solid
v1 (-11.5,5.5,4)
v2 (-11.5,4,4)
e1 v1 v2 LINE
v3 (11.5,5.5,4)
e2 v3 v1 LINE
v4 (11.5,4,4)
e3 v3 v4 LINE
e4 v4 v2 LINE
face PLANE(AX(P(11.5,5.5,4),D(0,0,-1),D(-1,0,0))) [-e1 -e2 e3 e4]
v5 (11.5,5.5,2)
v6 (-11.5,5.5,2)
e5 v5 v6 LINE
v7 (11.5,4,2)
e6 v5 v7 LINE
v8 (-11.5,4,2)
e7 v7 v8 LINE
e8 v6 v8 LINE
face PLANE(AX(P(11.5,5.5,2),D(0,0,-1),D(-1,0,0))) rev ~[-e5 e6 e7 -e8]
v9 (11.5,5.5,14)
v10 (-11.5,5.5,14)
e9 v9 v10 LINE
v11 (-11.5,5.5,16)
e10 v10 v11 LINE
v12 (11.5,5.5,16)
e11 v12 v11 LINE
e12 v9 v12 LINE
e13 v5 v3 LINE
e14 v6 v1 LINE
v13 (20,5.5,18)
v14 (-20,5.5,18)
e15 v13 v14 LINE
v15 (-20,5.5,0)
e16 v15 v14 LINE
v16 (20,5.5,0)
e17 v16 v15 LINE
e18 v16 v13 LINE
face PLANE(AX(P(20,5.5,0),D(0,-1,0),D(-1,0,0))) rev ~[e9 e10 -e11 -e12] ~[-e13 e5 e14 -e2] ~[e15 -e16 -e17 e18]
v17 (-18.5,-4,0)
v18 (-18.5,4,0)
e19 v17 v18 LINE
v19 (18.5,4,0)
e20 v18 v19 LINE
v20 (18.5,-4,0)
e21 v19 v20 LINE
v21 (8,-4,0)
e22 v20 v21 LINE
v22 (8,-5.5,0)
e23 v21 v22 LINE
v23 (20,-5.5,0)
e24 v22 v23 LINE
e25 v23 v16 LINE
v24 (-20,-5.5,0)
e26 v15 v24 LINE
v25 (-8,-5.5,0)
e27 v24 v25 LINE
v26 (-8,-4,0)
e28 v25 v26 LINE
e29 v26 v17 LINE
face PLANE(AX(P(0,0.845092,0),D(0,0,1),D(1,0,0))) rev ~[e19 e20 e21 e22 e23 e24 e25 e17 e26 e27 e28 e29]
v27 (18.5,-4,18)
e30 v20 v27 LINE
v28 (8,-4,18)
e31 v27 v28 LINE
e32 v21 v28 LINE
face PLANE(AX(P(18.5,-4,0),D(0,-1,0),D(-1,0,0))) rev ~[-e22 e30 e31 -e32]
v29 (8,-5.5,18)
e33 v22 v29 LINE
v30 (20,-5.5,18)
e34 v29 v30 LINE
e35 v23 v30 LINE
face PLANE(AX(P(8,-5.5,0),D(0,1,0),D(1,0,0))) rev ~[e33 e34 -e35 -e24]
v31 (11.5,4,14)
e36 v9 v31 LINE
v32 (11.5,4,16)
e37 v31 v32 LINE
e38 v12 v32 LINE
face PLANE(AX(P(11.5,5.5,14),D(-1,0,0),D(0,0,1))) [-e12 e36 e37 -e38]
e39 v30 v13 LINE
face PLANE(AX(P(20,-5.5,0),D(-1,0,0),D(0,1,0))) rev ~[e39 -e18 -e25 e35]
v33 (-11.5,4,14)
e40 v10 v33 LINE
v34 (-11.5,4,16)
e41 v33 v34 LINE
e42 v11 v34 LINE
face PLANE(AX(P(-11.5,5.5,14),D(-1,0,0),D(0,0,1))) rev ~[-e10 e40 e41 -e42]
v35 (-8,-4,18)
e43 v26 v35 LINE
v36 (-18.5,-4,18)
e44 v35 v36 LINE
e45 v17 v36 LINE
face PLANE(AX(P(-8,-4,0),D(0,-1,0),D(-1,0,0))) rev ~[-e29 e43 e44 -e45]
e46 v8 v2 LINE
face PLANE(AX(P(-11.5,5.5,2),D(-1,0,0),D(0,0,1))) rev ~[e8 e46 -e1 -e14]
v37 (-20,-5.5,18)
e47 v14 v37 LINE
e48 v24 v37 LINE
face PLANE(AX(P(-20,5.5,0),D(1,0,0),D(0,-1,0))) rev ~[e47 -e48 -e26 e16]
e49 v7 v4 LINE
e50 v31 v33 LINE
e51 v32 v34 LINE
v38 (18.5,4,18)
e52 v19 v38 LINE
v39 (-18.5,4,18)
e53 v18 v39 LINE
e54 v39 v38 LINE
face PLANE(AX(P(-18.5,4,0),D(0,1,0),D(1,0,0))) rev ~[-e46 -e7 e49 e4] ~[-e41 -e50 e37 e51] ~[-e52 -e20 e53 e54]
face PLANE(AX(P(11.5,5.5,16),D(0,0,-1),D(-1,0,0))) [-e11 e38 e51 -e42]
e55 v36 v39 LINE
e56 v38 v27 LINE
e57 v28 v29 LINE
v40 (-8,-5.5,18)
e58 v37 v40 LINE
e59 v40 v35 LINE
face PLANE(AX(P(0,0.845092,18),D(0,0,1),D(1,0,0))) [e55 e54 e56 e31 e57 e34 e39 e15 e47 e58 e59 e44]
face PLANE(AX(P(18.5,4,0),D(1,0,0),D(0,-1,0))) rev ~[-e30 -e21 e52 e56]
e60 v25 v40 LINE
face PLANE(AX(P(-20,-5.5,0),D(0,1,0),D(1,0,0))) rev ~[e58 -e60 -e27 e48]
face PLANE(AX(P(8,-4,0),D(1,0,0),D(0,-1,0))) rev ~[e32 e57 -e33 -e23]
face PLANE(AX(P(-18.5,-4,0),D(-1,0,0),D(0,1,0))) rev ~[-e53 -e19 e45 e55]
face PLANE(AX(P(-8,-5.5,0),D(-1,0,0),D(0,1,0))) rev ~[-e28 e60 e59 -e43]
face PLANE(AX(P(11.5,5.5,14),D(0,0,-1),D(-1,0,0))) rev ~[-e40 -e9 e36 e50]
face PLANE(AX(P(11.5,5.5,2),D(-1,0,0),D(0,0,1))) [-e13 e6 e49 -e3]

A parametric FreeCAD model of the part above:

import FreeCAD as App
import Part
import Sketcher

V = App.Vector

doc = App.newDocument("Part")
params = doc.addObject("Spreadsheet::Sheet", "Params")
for row, (alias, value) in enumerate([
    ("sketch1_width", "37 mm"),
    ("sketch1_width2", "12 mm"),
    ("sketch1_width3", "40 mm"),
    ("sketch1_height", "8 mm"),
    ("sketch1_height2", "11 mm"),
    ("pad1_length", "18 mm"),
    ("sketch2_width", "23 mm"),
    ("sketch2_height", "2 mm"),
    ("pocket1_length", "2 mm"),
], start=1):
    params.set(f"A{row}", alias)
    params.set(f"B{row}", "=" + value)
    params.setAlias(f"B{row}", alias)

body = doc.addObject("PartDesign::Body", "Body")

# Sketch on XY plane
sketch1 = body.newObject("Sketcher::SketchObject", "Sketch")
sketch1.AttachmentSupport = (doc.getObject("XY_Plane"), [""])
sketch1.MapMode = "FlatFace"
sketch1.addGeometry(Part.LineSegment(V(-18.5, 4, 0), V(18.5, 4, 0)), False)
sketch1.addGeometry(Part.LineSegment(V(18.5, 4, 0), V(18.5, -4, 0)), False)
sketch1.addGeometry(Part.LineSegment(V(18.5, -4, 0), V(8, -4, 0)), False)
sketch1.addGeometry(Part.LineSegment(V(8, -4, 0), V(8, -5.5, 0)), False)
sketch1.addGeometry(Part.LineSegment(V(8, -5.5, 0), V(20, -5.5, 0)), False)
sketch1.addGeometry(Part.LineSegment(V(20, -5.5, 0), V(20, 5.5, 0)), False)
sketch1.addGeometry(Part.LineSegment(V(20, 5.5, 0), V(-20, 5.5, 0)), False)
sketch1.addGeometry(Part.LineSegment(V(-20, 5.5, 0), V(-20, -5.5, 0)), False)
sketch1.addGeometry(Part.LineSegment(V(-20, -5.5, 0), V(-8, -5.5, 0)), False)
sketch1.addGeometry(Part.LineSegment(V(-8, -5.5, 0), V(-8, -4, 0)), False)
sketch1.addGeometry(Part.LineSegment(V(-8, -4, 0), V(-18.5, -4, 0)), False)
sketch1.addGeometry(Part.LineSegment(V(-18.5, -4, 0), V(-18.5, 4, 0)), False)
sketch1.addConstraint(Sketcher.Constraint("Coincident", 0, 2, 1, 1))
sketch1.addConstraint(Sketcher.Constraint("Coincident", 1, 2, 2, 1))
sketch1.addConstraint(Sketcher.Constraint("Coincident", 2, 2, 3, 1))
sketch1.addConstraint(Sketcher.Constraint("Coincident", 3, 2, 4, 1))
sketch1.addConstraint(Sketcher.Constraint("Coincident", 4, 2, 5, 1))
sketch1.addConstraint(Sketcher.Constraint("Coincident", 5, 2, 6, 1))
sketch1.addConstraint(Sketcher.Constraint("Coincident", 6, 2, 7, 1))
sketch1.addConstraint(Sketcher.Constraint("Coincident", 7, 2, 8, 1))
sketch1.addConstraint(Sketcher.Constraint("Coincident", 8, 2, 9, 1))
sketch1.addConstraint(Sketcher.Constraint("Coincident", 9, 2, 10, 1))
sketch1.addConstraint(Sketcher.Constraint("Coincident", 10, 2, 11, 1))
sketch1.addConstraint(Sketcher.Constraint("Coincident", 11, 2, 0, 1))
sketch1.addConstraint(Sketcher.Constraint("Horizontal", 0))
sketch1.addConstraint(Sketcher.Constraint("Vertical", 1))
sketch1.addConstraint(Sketcher.Constraint("Horizontal", 2))
sketch1.addConstraint(Sketcher.Constraint("Vertical", 3))
sketch1.addConstraint(Sketcher.Constraint("Horizontal", 4))
sketch1.addConstraint(Sketcher.Constraint("Vertical", 5))
sketch1.addConstraint(Sketcher.Constraint("Horizontal", 6))
sketch1.addConstraint(Sketcher.Constraint("Vertical", 7))
sketch1.addConstraint(Sketcher.Constraint("Horizontal", 8))
sketch1.addConstraint(Sketcher.Constraint("Vertical", 9))
sketch1.addConstraint(Sketcher.Constraint("Horizontal", 10))
sketch1.addConstraint(Sketcher.Constraint("Vertical", 11))
sketch1.addConstraint(Sketcher.Constraint("Symmetric", 4, 2, 6, 2, -1, 1))
sketch1.addConstraint(Sketcher.Constraint("Symmetric", 0, 2, 10, 2, -1, 1))
sketch1.addConstraint(Sketcher.Constraint("Symmetric", 3, 2, 8, 2, -2))
sketch1.addConstraint(Sketcher.Constraint("Horizontal", 2, 2, 9, 2))
sketch1.addConstraint(Sketcher.Constraint("DistanceX", 0, 1, 0, 2, 37.0))
sketch1.addConstraint(Sketcher.Constraint("DistanceX", 4, 1, 4, 2, 12.0))
sketch1.addConstraint(Sketcher.Constraint("DistanceX", 6, 2, 6, 1, 40.0))
sketch1.addConstraint(Sketcher.Constraint("DistanceY", 1, 2, 1, 1, 8.0))
sketch1.addConstraint(Sketcher.Constraint("DistanceY", 5, 1, 5, 2, 11.0))
sketch1.setExpression("Constraints[28]", "Params.sketch1_width")
sketch1.setExpression("Constraints[29]", "Params.sketch1_width2")
sketch1.setExpression("Constraints[30]", "Params.sketch1_width3")
sketch1.setExpression("Constraints[31]", "Params.sketch1_height")
sketch1.setExpression("Constraints[32]", "Params.sketch1_height2")
pad1 = body.newObject("PartDesign::Pad", "Pad")
pad1.Profile = sketch1
pad1.setExpression("Length", "Params.pad1_length")

# Sketch on XZ plane
sketch2 = body.newObject("Sketcher::SketchObject", "Sketch001")
sketch2.AttachmentSupport = (doc.getObject("XZ_Plane"), [""])
sketch2.MapMode = "FlatFace"
sketch2.AttachmentOffset = App.Placement(V(0, 0, -5.5), App.Rotation())
sketch2.addGeometry(Part.LineSegment(V(11.5, 16, 0), V(11.5, 14, 0)), False)
sketch2.addGeometry(Part.LineSegment(V(11.5, 14, 0), V(-11.5, 14, 0)), False)
sketch2.addGeometry(Part.LineSegment(V(-11.5, 14, 0), V(-11.5, 16, 0)), False)
sketch2.addGeometry(Part.LineSegment(V(-11.5, 16, 0), V(11.5, 16, 0)), False)
sketch2.addGeometry(Part.LineSegment(V(11.5, 4, 0), V(11.5, 2, 0)), False)
sketch2.addGeometry(Part.LineSegment(V(11.5, 2, 0), V(-11.5, 2, 0)), False)
sketch2.addGeometry(Part.LineSegment(V(-11.5, 2, 0), V(-11.5, 4, 0)), False)
sketch2.addGeometry(Part.LineSegment(V(-11.5, 4, 0), V(11.5, 4, 0)), False)
sketch2.addConstraint(Sketcher.Constraint("Coincident", 0, 2, 1, 1))
sketch2.addConstraint(Sketcher.Constraint("Coincident", 1, 2, 2, 1))
sketch2.addConstraint(Sketcher.Constraint("Coincident", 2, 2, 3, 1))
sketch2.addConstraint(Sketcher.Constraint("Coincident", 3, 2, 0, 1))
sketch2.addConstraint(Sketcher.Constraint("Coincident", 4, 2, 5, 1))
sketch2.addConstraint(Sketcher.Constraint("Coincident", 5, 2, 6, 1))
sketch2.addConstraint(Sketcher.Constraint("Coincident", 6, 2, 7, 1))
sketch2.addConstraint(Sketcher.Constraint("Coincident", 7, 2, 4, 1))
sketch2.addConstraint(Sketcher.Constraint("Vertical", 0))
sketch2.addConstraint(Sketcher.Constraint("Horizontal", 1))
sketch2.addConstraint(Sketcher.Constraint("Vertical", 2))
sketch2.addConstraint(Sketcher.Constraint("Horizontal", 3))
sketch2.addConstraint(Sketcher.Constraint("Vertical", 4))
sketch2.addConstraint(Sketcher.Constraint("Horizontal", 5))
sketch2.addConstraint(Sketcher.Constraint("Vertical", 6))
sketch2.addConstraint(Sketcher.Constraint("Horizontal", 7))
sketch2.addConstraint(Sketcher.Constraint("Vertical", 3, 2, 4, 2))
sketch2.addConstraint(Sketcher.Constraint("Vertical", 2, 2, 5, 2))
sketch2.addConstraint(Sketcher.Constraint("Equal", 2, 4))
sketch2.addConstraint(Sketcher.Constraint("DistanceX", 1, 2, 1, 1, 23.0))
sketch2.addConstraint(Sketcher.Constraint("DistanceY", 0, 2, 0, 1, 2.0))
sketch2.addConstraint(Sketcher.Constraint("DistanceY", -1, 1, 0, 2, 14.0))
sketch2.addConstraint(Sketcher.Constraint("DistanceY", -1, 1, 4, 2, 2.0))
sketch2.addConstraint(Sketcher.Constraint("DistanceX", -1, 1, 0, 2, 11.5))
sketch2.setExpression("Constraints[19]", "Params.sketch2_width")
sketch2.setExpression("Constraints[20]", "Params.sketch2_height")
pocket1 = body.newObject("PartDesign::Pocket", "Pocket")
pocket1.Profile = sketch2
pocket1.setExpression("Length", "Params.pocket1_length")
pocket1.Reversed = True

doc.recompute()
